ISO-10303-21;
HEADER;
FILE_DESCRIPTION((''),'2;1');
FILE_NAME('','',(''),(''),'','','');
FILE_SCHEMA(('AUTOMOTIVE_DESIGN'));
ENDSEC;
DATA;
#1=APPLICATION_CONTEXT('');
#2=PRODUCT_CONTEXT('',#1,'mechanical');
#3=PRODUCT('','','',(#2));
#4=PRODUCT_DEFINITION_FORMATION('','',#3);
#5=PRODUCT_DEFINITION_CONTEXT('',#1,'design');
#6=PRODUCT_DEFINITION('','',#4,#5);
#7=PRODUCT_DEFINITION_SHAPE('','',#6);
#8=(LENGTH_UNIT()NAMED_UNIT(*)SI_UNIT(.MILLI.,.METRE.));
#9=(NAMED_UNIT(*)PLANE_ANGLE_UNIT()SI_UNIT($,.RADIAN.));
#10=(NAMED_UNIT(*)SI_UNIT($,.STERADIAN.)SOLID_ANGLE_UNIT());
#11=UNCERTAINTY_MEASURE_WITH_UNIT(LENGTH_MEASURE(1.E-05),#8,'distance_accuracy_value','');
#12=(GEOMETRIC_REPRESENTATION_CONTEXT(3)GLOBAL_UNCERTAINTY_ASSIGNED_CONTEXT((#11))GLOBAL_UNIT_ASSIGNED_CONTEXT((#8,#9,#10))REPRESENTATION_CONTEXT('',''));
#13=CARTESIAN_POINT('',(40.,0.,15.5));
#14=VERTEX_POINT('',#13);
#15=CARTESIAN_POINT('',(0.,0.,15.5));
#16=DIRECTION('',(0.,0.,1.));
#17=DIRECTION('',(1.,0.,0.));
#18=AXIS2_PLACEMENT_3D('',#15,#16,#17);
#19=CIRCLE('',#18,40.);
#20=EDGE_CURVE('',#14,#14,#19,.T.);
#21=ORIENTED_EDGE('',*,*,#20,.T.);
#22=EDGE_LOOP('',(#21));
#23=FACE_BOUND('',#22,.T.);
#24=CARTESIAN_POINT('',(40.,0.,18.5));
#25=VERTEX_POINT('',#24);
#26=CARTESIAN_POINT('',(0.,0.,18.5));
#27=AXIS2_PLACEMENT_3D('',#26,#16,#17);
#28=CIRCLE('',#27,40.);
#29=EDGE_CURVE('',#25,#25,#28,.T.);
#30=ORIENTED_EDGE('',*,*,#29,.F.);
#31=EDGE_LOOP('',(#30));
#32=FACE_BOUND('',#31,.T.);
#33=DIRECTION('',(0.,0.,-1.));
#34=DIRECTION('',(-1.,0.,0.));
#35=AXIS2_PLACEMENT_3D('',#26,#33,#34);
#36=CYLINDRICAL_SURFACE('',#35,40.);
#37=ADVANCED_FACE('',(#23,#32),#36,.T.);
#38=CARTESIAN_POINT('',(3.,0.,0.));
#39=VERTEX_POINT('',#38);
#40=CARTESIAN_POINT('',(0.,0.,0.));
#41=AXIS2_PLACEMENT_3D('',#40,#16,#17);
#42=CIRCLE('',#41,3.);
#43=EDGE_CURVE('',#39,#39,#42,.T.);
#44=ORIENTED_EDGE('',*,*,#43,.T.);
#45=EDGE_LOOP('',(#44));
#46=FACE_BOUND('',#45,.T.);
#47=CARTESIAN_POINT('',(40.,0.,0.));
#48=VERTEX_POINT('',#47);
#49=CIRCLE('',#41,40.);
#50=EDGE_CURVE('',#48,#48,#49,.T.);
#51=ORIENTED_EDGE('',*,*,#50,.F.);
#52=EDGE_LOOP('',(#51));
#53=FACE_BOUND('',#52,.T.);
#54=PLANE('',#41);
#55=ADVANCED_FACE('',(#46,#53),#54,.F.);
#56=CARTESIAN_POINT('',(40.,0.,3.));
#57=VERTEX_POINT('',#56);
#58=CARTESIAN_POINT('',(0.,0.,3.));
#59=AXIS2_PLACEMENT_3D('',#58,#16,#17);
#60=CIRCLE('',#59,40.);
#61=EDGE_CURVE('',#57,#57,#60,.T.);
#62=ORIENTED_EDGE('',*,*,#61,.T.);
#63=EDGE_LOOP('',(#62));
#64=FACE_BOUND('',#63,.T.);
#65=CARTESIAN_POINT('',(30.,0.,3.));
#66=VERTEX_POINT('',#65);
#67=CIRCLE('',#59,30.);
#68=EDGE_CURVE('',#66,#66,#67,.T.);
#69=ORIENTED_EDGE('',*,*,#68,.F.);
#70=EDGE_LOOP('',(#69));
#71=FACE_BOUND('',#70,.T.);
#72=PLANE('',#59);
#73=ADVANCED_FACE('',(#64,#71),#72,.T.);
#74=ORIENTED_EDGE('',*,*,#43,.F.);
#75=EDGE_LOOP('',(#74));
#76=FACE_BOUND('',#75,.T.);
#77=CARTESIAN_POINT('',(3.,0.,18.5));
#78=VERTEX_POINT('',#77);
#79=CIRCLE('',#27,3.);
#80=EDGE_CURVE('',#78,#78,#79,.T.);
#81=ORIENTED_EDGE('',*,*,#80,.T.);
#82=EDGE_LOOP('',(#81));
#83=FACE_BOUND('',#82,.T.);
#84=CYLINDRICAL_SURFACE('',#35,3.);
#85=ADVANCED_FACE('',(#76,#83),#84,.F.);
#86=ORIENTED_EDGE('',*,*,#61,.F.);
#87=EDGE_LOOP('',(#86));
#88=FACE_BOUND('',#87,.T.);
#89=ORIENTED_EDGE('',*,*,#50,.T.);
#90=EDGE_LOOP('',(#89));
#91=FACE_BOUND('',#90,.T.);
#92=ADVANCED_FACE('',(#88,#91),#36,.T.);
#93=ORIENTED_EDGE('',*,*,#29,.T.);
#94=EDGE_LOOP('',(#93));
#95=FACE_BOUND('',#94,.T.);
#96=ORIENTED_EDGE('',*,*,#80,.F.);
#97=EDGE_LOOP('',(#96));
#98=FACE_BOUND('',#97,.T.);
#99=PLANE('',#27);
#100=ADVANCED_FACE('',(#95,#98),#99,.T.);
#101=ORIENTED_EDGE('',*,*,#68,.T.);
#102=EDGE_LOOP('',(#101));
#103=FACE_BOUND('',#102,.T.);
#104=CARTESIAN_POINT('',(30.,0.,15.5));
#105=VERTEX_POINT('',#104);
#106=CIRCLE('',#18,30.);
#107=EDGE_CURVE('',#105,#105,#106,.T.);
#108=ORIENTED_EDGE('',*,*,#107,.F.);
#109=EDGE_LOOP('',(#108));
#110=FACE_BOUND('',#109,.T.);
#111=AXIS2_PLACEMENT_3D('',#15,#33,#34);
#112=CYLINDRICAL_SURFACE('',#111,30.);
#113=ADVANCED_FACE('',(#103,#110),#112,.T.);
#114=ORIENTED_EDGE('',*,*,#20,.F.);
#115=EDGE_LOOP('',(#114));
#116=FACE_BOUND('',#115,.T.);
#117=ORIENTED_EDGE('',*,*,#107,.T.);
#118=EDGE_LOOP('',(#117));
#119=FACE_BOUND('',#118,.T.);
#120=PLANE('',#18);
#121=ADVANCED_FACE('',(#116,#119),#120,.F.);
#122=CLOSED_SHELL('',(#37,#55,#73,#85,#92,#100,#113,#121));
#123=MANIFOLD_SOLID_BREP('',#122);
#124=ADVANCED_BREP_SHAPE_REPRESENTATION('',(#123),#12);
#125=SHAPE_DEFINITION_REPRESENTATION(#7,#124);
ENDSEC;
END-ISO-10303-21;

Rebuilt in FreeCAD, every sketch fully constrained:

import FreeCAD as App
import Part
import Sketcher

V = App.Vector
Q = App.Units.Quantity

doc = App.newDocument("Part")
params = doc.addObject("Spreadsheet::Sheet", "Params")
for row, (alias, value) in enumerate([
    ("sketch1_diameter", "80 mm"),
    ("sketch1_diameter2", "6 mm"),
    ("pad1_length", "18.5 mm"),
    ("sketch2_diameter", "85 mm"),
    ("sketch2_diameter2", "60 mm"),
    ("pocket1_length", "6.25 mm"),
    ("pocket1_length2", "6.25 mm"),
], start=1):
    params.set(f"A{row}", alias)
    params.set(f"B{row}", "=" + value)
    params.setAlias(f"B{row}", alias)

body = doc.addObject("PartDesign::Body", "Body")

# Sketch on XY plane
sketch1 = doc.addObject("Sketcher::SketchObject", "Sketch")
body.addObject(sketch1)
sketch1.AttachmentSupport = (doc.XY_Plane, [""])
sketch1.MapMode = "FlatFace"
sketch1.addGeometry([
    Part.Circle(V(0, 0, 0), V(0, 0, 1), 40),
    Part.Circle(V(0, 0, 0), V(0, 0, 1), 3),
], False)
sketch1.addConstraint([
    Sketcher.Constraint("Coincident", 0, 3, -1, 1),
    Sketcher.Constraint("Coincident", 1, 3, -1, 1),
    Sketcher.Constraint("Diameter", 0, Q("80 mm")),
    Sketcher.Constraint("Diameter", 1, Q("6 mm")),
])
sketch1.setExpression("Constraints[2]", "Params.sketch1_diameter")
sketch1.setExpression("Constraints[3]", "Params.sketch1_diameter2")
pad1 = doc.addObject("PartDesign::Pad", "Pad")
body.addObject(pad1)
pad1.Profile = sketch1
pad1.setExpression("Length", "Params.pad1_length")

# Sketch on XY plane
sketch2 = doc.addObject("Sketcher::SketchObject", "Sketch001")
body.addObject(sketch2)
sketch2.AttachmentSupport = (doc.XY_Plane, [""])
sketch2.MapMode = "FlatFace"
sketch2.AttachmentOffset = App.Placement(V(0, 0, 9.25), App.Rotation())
sketch2.addGeometry([
    Part.Circle(V(0, 0, 0), V(0, 0, 1), 42),
    Part.Circle(V(0, 0, 0), V(0, 0, 1), 30),
], False)
sketch2.addConstraint([
    Sketcher.Constraint("Coincident", 0, 3, -1, 1),
    Sketcher.Constraint("Coincident", 1, 3, -1, 1),
    Sketcher.Constraint("Diameter", 0, Q("85 mm")),
    Sketcher.Constraint("Diameter", 1, Q("60 mm")),
])
sketch2.setExpression("Constraints[2]", "Params.sketch2_diameter")
sketch2.setExpression("Constraints[3]", "Params.sketch2_diameter2")
pocket1 = doc.addObject("PartDesign::Pocket", "Pocket")
body.addObject(pocket1)
pocket1.Profile = sketch2
pocket1.Type = "TwoLengths"
pocket1.setExpression("Length", "Params.pocket1_length")
pocket1.setExpression("Length2", "Params.pocket1_length2")
pocket1.Reversed = True

doc.recompute()
